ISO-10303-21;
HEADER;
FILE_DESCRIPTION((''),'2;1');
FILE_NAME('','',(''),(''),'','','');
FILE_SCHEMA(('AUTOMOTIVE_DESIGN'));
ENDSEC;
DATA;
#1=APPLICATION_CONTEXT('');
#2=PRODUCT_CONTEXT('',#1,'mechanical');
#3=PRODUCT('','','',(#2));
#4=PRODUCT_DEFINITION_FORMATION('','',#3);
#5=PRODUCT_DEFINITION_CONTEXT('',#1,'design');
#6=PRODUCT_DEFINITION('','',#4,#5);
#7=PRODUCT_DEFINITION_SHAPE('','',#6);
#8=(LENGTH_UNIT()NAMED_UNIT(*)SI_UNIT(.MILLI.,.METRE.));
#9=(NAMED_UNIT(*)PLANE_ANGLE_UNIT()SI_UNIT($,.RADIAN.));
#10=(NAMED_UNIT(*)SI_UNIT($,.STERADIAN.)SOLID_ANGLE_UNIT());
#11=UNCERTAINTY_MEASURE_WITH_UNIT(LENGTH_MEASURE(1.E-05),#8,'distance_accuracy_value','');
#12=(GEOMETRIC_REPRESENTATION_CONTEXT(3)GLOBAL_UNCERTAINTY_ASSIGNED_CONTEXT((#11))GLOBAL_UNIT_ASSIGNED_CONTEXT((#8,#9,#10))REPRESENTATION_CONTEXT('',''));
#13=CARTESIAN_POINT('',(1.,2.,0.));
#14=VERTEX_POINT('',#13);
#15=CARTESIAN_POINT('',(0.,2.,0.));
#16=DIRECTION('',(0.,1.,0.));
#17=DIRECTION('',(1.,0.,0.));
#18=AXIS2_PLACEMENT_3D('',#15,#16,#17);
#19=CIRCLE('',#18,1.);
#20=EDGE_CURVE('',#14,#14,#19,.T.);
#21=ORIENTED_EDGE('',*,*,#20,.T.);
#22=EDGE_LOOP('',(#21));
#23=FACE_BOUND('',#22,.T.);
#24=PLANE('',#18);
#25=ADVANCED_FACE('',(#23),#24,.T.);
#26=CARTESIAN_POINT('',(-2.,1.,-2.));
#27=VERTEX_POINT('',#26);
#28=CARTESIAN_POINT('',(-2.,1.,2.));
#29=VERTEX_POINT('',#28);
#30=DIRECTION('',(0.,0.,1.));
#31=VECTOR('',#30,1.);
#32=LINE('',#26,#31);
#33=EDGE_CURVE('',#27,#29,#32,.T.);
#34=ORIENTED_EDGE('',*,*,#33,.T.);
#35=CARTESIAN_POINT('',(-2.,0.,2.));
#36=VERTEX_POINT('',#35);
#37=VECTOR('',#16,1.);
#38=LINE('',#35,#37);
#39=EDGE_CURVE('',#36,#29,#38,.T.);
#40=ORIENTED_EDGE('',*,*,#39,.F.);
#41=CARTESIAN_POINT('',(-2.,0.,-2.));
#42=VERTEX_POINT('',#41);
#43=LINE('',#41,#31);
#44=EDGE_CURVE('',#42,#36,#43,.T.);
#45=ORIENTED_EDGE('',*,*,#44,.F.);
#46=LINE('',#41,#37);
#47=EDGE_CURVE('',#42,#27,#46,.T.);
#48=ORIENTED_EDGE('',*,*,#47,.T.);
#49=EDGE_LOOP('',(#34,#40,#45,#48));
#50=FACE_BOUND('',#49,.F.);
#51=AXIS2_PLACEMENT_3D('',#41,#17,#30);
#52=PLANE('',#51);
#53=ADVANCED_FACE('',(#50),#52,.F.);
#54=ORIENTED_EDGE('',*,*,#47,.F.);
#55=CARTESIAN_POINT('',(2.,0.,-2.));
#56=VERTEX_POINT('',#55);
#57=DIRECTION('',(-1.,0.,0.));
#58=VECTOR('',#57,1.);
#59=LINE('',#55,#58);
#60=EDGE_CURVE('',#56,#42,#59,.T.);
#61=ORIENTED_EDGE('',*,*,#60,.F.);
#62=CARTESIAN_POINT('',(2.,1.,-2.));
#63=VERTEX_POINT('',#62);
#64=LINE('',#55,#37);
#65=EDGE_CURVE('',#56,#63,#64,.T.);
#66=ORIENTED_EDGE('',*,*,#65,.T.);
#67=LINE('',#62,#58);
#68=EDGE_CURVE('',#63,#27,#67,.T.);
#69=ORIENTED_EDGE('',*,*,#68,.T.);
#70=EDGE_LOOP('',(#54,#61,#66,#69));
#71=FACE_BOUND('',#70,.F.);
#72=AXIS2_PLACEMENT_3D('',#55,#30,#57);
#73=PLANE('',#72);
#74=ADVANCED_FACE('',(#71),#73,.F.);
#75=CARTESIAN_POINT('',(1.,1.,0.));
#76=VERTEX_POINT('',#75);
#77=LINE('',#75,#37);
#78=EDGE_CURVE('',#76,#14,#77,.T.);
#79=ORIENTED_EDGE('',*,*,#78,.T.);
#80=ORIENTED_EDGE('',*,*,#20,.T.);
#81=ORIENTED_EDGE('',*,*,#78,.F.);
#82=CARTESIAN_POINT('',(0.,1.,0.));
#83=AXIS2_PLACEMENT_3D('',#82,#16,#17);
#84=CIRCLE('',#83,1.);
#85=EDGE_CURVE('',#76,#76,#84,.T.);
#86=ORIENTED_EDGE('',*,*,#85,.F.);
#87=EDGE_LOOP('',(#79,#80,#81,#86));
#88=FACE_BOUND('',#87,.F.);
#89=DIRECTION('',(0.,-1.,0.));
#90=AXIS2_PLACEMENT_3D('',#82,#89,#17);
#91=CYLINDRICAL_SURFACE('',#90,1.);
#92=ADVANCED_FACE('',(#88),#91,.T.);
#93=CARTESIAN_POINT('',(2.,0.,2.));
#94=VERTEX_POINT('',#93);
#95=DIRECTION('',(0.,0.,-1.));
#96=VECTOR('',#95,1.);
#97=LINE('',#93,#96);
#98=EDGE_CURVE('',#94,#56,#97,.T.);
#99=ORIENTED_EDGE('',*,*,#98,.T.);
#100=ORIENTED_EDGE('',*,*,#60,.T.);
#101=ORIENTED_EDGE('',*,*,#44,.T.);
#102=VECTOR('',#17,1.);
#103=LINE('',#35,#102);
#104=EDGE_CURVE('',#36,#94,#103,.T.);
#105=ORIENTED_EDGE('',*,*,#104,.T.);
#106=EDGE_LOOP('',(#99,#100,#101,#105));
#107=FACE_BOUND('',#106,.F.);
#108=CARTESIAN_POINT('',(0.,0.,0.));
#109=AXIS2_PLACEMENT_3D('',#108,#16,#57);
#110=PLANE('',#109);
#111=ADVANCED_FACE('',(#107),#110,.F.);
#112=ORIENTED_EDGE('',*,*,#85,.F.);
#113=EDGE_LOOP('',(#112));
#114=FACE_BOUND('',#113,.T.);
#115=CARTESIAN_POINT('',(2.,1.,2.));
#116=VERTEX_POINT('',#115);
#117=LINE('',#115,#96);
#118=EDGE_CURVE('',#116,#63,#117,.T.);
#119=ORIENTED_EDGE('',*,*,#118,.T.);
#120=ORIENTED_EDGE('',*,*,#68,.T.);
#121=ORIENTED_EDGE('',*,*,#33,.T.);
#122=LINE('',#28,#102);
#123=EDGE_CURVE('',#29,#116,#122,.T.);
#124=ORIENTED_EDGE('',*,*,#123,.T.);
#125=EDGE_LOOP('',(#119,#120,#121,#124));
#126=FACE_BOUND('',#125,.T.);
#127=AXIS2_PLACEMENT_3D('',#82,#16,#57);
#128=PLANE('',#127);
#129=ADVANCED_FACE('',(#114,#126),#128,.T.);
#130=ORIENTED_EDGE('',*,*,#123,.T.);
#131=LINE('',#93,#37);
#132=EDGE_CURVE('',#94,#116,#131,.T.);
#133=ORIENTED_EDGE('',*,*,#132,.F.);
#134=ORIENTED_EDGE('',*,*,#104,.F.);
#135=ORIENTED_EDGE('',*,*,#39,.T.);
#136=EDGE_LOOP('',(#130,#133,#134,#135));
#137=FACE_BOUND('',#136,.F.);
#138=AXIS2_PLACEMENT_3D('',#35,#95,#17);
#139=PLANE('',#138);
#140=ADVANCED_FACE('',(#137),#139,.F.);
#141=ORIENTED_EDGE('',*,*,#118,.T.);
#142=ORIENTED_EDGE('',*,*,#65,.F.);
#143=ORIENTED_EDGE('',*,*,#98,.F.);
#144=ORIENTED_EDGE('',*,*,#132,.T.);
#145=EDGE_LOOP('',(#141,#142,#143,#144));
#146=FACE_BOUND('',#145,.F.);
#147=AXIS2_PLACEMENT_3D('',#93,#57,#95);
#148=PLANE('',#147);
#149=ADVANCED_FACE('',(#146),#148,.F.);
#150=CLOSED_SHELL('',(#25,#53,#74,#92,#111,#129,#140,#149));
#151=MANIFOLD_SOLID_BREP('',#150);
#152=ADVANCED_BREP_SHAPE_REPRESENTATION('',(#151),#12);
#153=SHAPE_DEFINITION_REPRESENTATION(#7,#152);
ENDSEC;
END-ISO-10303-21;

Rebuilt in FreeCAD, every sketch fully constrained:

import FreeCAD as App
import Part
import Sketcher
Q = App.Units.Quantity

doc = App.newDocument("Part")
body = doc.addObject("PartDesign::Body", "Body")

# Sketch on XZ plane
sketch1 = doc.addObject("Sketcher::SketchObject", "Sketch")
body.addObject(sketch1)
sketch1.AttachmentSupport = (doc.XZ_Plane, [""])
sketch1.MapMode = "FlatFace"
sketch1.addGeometry([
    Part.LineSegment(App.Vector(-2, -2, 0), App.Vector(-2, 2, 0)),
    Part.LineSegment(App.Vector(-2, 2, 0), App.Vector(2, 2, 0)),
    Part.LineSegment(App.Vector(2, 2, 0), App.Vector(2, -2, 0)),
    Part.LineSegment(App.Vector(2, -2, 0), App.Vector(-2, -2, 0)),
], False)
sketch1.addConstraint([
    Sketcher.Constraint("Coincident", 0, 2, 1, 1),
    Sketcher.Constraint("Coincident", 1, 2, 2, 1),
    Sketcher.Constraint("Coincident", 2, 2, 3, 1),
    Sketcher.Constraint("Coincident", 3, 2, 0, 1),
    Sketcher.Constraint("Vertical", 0),
    Sketcher.Constraint("Horizontal", 1),
    Sketcher.Constraint("Vertical", 2),
    Sketcher.Constraint("Horizontal", 3),
    Sketcher.Constraint("Symmetric", 0, 2, 2, 2, -1, 1),
    Sketcher.Constraint("Equal", 3, 0),
    Sketcher.Constraint("DistanceX", 1, 1, 1, 2, Q("4 mm")),
])
pad1 = doc.addObject("PartDesign::Pad", "Pad")
body.addObject(pad1)
pad1.Profile = sketch1
pad1.Length = 1
pad1.Reversed = True

# Sketch on XZ plane
sketch2 = doc.addObject("Sketcher::SketchObject", "Sketch001")
body.addObject(sketch2)
sketch2.AttachmentSupport = (doc.XZ_Plane, [""])
sketch2.MapMode = "FlatFace"
sketch2.AttachmentOffset = App.Placement(App.Vector(0, 0, -1), App.Rotation())
sketch2.addGeometry(Part.Circle(App.Vector(0, 0, 0), App.Vector(0, 0, 1), 1), False)
sketch2.addConstraint([
    Sketcher.Constraint("Coincident", 0, 3, -1, 1),
    Sketcher.Constraint("Diameter", 0, Q("2 mm")),
])
pad2 = doc.addObject("PartDesign::Pad", "Pad001")
body.addObject(pad2)
pad2.Profile = sketch2
pad2.Length = 1
pad2.Reversed = True

doc.recompute()
